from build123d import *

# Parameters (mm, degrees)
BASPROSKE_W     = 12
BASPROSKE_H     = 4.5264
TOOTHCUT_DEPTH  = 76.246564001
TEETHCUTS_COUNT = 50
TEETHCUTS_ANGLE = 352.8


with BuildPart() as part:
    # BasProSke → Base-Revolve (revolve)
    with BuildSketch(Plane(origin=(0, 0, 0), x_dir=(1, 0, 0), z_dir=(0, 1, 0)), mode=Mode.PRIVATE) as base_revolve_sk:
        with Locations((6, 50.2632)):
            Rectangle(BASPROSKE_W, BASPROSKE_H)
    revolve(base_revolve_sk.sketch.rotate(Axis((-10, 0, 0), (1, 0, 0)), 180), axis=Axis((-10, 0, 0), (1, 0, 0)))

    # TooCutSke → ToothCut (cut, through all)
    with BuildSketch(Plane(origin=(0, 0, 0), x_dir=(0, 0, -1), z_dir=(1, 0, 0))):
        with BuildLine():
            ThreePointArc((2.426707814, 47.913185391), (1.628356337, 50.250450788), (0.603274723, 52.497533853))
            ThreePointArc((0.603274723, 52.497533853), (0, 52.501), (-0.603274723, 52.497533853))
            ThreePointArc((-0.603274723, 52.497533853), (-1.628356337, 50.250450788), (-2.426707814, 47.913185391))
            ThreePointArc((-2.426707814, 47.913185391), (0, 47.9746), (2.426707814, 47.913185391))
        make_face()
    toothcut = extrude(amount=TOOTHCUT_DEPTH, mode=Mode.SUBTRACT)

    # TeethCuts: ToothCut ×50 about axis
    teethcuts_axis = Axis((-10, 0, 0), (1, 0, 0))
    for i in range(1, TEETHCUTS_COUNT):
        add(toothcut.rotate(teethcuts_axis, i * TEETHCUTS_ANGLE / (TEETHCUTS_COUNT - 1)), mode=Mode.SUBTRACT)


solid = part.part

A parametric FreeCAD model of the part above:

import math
import FreeCAD as App
import Part
import Sketcher

V = App.Vector
Q = App.Units.Quantity

doc = App.newDocument("Part")
body = doc.addObject("PartDesign::Body", "Body")

sketch1 = doc.addObject("Sketcher::SketchObject", "Sketch")
body.addObject(sketch1)
sketch1.AttachmentSupport = (doc.XZ_Plane, [""])
sketch1.MapMode = "FlatFace"
sketch1.addGeometry([
    Part.LineSegment(V(0, -52.5, 0), V(0, -48, 0)),
    Part.LineSegment(V(0, -48, 0), V(12, -48, 0)),
    Part.LineSegment(V(12, -48, 0), V(12, -52.5, 0)),
    Part.LineSegment(V(12, -52.5, 0), V(0, -52.5, 0)),
], False)
sketch1.addConstraint([
    Sketcher.Constraint("Coincident", 0, 2, 1, 1),
    Sketcher.Constraint("Coincident", 1, 2, 2, 1),
    Sketcher.Constraint("Coincident", 2, 2, 3, 1),
    Sketcher.Constraint("Coincident", 3, 2, 0, 1),
    Sketcher.Constraint("Vertical", 0),
    Sketcher.Constraint("Horizontal", 1),
    Sketcher.Constraint("Vertical", 2),
    Sketcher.Constraint("Horizontal", 3),
    Sketcher.Constraint("PointOnObject", 0, 2, -2),
    Sketcher.Constraint("DistanceX", 1, 1, 1, 2, Q("12 mm")),
    Sketcher.Constraint("DistanceY", 0, 2, -1, 1, Q("48 mm")),
    Sketcher.Constraint("DistanceY", 0, 1, 0, 2, Q("4.5264 mm")),
])
revolution = doc.addObject("PartDesign::Revolution", "Revolution")
body.addObject(revolution)
revolution.Profile = sketch1
revolution.ReferenceAxis = (sketch1, ["H_Axis"])
revolution.Angle = 360

sketch2 = doc.addObject("Sketcher::SketchObject", "Sketch001")
body.addObject(sketch2)
sketch2.AttachmentSupport = (doc.YZ_Plane, [""])
sketch2.MapMode = "FlatFace"
sketch2.addGeometry([
    Part.ArcOfCircle(Part.Circle(V(41, 21.6, 0), V(0, 0, 1), 25), math.radians(-73.97), math.radians(-62.65)),
    Part.ArcOfCircle(Part.Circle(V(0, 0, 0), V(0, 0, 1), 52.5), math.radians(-0.66), math.radians(0.66)),
    Part.ArcOfCircle(Part.Circle(V(41, -21.6, 0), V(0, 0, 1), 25), math.radians(62.65), math.radians(73.97)),
    Part.ArcOfCircle(Part.Circle(V(0, 0, 0), V(0, 0, 1), 48), math.radians(-2.9), math.radians(2.9)),
], False)
sketch2.addConstraint([
    Sketcher.Constraint("Coincident", 0, 2, 1, 1),
    Sketcher.Constraint("Coincident", 1, 2, 2, 1),
    Sketcher.Constraint("Coincident", 2, 2, 3, 2),
    Sketcher.Constraint("Coincident", 3, 1, 0, 1),
    Sketcher.Constraint("Coincident", 1, 3, -1, 1),
    Sketcher.Constraint("Coincident", 3, 3, -1, 1),
    Sketcher.Constraint("Equal", 0, 2),
    Sketcher.Constraint("Symmetric", 0, 3, 2, 3, -1),
    Sketcher.Constraint("Radius", 0, Q("25 mm")),
    Sketcher.Constraint("Radius", 3, Q("47.9746 mm")),
    Sketcher.Constraint("Radius", 1, Q("52.501006 mm")),
    Sketcher.Constraint("DistanceY", 0, 2, 0, 3, Q("22.2048 mm")),
    Sketcher.Constraint("DistanceY", 2, 3, 0, 3, Q("43.203051 mm")),
])
pocket1 = doc.addObject("PartDesign::Pocket", "Pocket")
body.addObject(pocket1)
pocket1.Profile = sketch2
pocket1.Type = "ThroughAll"
pocket1.Reversed = True
doc.recompute()

polarpattern = doc.addObject("PartDesign::PolarPattern", "PolarPattern")
body.addObject(polarpattern)
polarpattern.Originals = [pocket1]
polarpattern.Axis = (doc.X_Axis, [""])
polarpattern.Angle = 360
polarpattern.Occurrences = 50
body.Tip = polarpattern

doc.recompute()
